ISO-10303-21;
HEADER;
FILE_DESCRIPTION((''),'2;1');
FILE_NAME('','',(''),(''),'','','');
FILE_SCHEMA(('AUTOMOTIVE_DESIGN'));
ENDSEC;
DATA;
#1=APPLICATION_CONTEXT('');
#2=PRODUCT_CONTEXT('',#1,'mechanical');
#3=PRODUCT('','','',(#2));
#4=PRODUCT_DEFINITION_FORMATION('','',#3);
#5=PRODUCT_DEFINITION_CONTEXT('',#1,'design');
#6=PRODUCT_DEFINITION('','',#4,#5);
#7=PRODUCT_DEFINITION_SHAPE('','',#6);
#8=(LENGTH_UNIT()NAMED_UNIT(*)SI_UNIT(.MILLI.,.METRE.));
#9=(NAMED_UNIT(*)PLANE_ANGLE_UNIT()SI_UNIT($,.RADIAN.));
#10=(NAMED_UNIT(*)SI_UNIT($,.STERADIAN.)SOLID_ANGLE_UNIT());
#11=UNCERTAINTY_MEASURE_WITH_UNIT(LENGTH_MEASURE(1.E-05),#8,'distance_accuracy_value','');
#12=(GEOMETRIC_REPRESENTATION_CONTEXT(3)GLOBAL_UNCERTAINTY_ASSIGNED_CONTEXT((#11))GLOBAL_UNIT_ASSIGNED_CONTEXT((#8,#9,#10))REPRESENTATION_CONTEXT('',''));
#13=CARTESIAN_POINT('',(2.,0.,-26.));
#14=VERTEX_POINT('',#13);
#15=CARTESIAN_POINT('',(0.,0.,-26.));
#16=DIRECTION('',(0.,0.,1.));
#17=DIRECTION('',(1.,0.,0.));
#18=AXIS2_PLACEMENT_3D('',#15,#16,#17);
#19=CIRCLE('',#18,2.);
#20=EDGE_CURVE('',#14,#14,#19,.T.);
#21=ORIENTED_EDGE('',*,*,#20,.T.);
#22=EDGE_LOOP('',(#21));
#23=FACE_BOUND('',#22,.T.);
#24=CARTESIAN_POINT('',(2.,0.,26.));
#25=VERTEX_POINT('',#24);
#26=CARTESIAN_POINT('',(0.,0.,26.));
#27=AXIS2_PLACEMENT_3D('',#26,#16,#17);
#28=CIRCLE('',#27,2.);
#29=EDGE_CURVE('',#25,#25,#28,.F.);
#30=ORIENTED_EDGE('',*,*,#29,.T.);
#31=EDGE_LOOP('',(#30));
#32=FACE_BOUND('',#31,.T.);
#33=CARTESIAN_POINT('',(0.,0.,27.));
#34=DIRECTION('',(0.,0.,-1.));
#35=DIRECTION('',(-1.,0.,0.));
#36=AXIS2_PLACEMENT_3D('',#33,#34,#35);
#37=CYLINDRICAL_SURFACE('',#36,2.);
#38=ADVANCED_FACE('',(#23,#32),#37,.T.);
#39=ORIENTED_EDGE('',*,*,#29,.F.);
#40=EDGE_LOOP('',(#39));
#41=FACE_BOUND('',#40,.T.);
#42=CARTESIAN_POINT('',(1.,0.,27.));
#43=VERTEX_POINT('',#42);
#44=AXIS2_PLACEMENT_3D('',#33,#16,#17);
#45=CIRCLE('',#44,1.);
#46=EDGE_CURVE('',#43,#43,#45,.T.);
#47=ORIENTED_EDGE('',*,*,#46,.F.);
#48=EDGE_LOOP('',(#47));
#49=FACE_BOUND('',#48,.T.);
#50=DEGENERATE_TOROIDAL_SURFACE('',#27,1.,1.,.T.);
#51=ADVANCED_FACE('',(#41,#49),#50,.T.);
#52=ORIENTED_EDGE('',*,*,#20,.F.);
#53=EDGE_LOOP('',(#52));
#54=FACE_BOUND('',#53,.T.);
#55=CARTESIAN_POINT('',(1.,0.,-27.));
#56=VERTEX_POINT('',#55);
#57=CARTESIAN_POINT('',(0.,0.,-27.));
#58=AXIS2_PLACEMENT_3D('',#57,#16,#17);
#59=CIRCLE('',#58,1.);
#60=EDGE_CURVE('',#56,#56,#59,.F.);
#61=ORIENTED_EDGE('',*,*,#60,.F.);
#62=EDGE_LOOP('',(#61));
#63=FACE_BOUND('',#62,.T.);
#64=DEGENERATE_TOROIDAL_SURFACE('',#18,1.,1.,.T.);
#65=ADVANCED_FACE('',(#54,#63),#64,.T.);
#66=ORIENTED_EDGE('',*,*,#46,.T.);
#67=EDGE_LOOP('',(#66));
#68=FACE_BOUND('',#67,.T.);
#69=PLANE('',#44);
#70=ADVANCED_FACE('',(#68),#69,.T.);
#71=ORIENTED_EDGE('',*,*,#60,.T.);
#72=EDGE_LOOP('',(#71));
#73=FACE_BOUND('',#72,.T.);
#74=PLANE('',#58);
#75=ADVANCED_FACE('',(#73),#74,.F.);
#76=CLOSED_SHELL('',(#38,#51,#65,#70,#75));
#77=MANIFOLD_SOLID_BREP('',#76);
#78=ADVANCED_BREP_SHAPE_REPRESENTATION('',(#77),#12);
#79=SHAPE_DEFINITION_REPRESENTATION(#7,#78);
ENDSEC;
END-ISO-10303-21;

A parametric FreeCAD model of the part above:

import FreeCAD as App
import Part
import Sketcher


def edges_at(feature, points):
    """Names of the edges that pass closest to the given points."""
    edges = feature.Shape.Edges
    near = lambda p: min(range(len(edges)), key=lambda i: edges[i].distToShape(Part.Vertex(*p))[0])
    return sorted({f"Edge{near(p) + 1}" for p in points})

doc = App.newDocument("Part")
params = doc.addObject("Spreadsheet::Sheet", "Params")
for row, (alias, value) in enumerate([
    ("sketch1_diameter", "4 mm"),
    ("pad1_length", "54 mm"),
    ("fillet_radius", "1 mm"),
    ("fillet2_radius", "1 mm"),
], start=1):
    params.set(f"A{row}", alias)
    params.set(f"B{row}", "=" + value)
    params.setAlias(f"B{row}", alias)

body = doc.addObject("PartDesign::Body", "Body")

# Sketch on XY plane
sketch1 = doc.addObject("Sketcher::SketchObject", "Sketch")
body.addObject(sketch1)
sketch1.AttachmentSupport = (doc.XY_Plane, [""])
sketch1.MapMode = "FlatFace"
sketch1.addGeometry(Part.Circle(App.Vector(0, 0, 0), App.Vector(0, 0, 1), 2), False)
sketch1.addConstraint([
    Sketcher.Constraint("Coincident", 0, 3, -1, 1),
    Sketcher.Constraint("Diameter", 0, 4.0),
])
sketch1.setExpression("Constraints[1]", "Params.sketch1_diameter")
pad1 = doc.addObject("PartDesign::Pad", "Pad")
body.addObject(pad1)
pad1.Profile = sketch1
pad1.setExpression("Length", "Params.pad1_length")
pad1.Midplane = True
doc.recompute()

fillet = doc.addObject("PartDesign::Fillet", "Fillet")
body.addObject(fillet)
fillet.Base = (pad1, edges_at(pad1, [(-2, 0, 27)]))
fillet.setExpression("Radius", "Params.fillet_radius")
doc.recompute()

fillet2 = doc.addObject("PartDesign::Fillet", "Fillet001")
body.addObject(fillet2)
fillet2.Base = (fillet, edges_at(fillet, [(-2, 0, -27)]))
fillet2.setExpression("Radius", "Params.fillet2_radius")

doc.recompute()
